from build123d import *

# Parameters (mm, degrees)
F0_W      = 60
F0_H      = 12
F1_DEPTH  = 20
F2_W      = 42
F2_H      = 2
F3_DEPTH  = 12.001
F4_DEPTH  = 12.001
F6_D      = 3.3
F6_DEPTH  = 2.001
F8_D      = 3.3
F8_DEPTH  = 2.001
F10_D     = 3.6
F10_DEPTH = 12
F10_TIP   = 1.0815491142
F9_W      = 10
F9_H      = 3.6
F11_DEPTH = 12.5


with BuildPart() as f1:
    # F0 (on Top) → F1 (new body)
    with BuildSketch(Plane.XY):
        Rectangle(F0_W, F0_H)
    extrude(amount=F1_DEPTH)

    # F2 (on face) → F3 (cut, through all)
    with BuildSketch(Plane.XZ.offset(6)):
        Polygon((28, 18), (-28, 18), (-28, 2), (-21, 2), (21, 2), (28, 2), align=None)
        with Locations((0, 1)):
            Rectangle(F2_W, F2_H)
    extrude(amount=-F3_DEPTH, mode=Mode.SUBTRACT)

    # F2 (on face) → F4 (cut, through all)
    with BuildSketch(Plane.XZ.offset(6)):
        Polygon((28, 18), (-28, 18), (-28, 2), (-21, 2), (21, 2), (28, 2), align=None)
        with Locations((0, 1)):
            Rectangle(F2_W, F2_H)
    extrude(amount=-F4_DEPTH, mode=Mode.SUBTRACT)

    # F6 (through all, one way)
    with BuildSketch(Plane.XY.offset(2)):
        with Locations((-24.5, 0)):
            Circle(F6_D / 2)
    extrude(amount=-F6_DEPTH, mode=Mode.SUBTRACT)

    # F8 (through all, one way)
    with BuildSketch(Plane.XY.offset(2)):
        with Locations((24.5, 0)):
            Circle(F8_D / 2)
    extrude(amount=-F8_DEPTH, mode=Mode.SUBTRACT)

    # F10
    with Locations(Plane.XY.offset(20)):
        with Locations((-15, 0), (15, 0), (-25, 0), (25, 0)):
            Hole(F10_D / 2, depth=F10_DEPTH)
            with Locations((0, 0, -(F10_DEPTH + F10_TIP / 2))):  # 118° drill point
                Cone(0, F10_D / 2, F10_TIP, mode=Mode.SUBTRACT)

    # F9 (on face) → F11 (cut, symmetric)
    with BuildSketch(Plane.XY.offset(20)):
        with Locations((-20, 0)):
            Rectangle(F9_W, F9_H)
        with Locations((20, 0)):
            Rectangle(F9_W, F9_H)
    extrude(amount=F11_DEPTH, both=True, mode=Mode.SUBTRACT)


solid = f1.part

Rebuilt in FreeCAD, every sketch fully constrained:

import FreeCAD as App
import Part
import Sketcher
from FreeCAD import Vector


def add_polygon(sketch, points):
    """Adds a closed chain of lines whose ends are joined by coincident constraints."""
    first, n = sketch.GeometryCount, len(points)
    for a, b in zip(points, points[1:] + points[:1]):
        sketch.addGeometry(Part.LineSegment(App.Vector(*a, 0), App.Vector(*b, 0)), False)
    for i in range(n):
        sketch.addConstraint(Sketcher.Constraint("Coincident", first + i, 2, first + (i + 1) % n, 1))

doc = App.newDocument("Part")
body = doc.addObject("PartDesign::Body", "Body")

sketch1 = body.newObject("Sketcher::SketchObject", "Sketch")
sketch1.AttachmentSupport = (doc.getObject("XY_Plane"), [""])
sketch1.MapMode = "FlatFace"
add_polygon(sketch1, [(-30, 6), (-30, -6), (30, -6), (30, 6)])
sketch1.addConstraint(Sketcher.Constraint("Vertical", 0))
sketch1.addConstraint(Sketcher.Constraint("Horizontal", 1))
sketch1.addConstraint(Sketcher.Constraint("Vertical", 2))
sketch1.addConstraint(Sketcher.Constraint("Horizontal", 3))
sketch1.addConstraint(Sketcher.Constraint("Symmetric", 0, 2, 2, 2, -1, 1))
sketch1.addConstraint(Sketcher.Constraint("DistanceX", 1, 1, 1, 2, 60.0))
sketch1.addConstraint(Sketcher.Constraint("DistanceY", 0, 2, 0, 1, 12.0))
pad1 = body.newObject("PartDesign::Pad", "Pad")
pad1.Profile = sketch1
pad1.Length = 20

sketch2 = body.newObject("Sketcher::SketchObject", "Sketch001")
sketch2.AttachmentSupport = (doc.getObject("XZ_Plane"), [""])
sketch2.MapMode = "FlatFace"
sketch2.AttachmentOffset = App.Placement(Vector(0, 0, 6), App.Rotation())
add_polygon(sketch2, [(28, 18), (-28, 18), (-28, 2), (-21, 2), (-21, 0), (21, 0), (21, 2), (28, 2)])
sketch2.addConstraint(Sketcher.Constraint("Horizontal", 0))
sketch2.addConstraint(Sketcher.Constraint("Vertical", 1))
sketch2.addConstraint(Sketcher.Constraint("Horizontal", 2))
sketch2.addConstraint(Sketcher.Constraint("Vertical", 3))
sketch2.addConstraint(Sketcher.Constraint("Horizontal", 4))
sketch2.addConstraint(Sketcher.Constraint("Vertical", 5))
sketch2.addConstraint(Sketcher.Constraint("Horizontal", 6))
sketch2.addConstraint(Sketcher.Constraint("Vertical", 7))
sketch2.addConstraint(Sketcher.Constraint("Symmetric", 3, 2, 4, 2, -1, 1))
sketch2.addConstraint(Sketcher.Constraint("Symmetric", 1, 2, 6, 2, -2))
sketch2.addConstraint(Sketcher.Constraint("DistanceX", 0, 2, 0, 1, 56.0))
sketch2.addConstraint(Sketcher.Constraint("DistanceX", 2, 1, 2, 2, 7.0))
sketch2.addConstraint(Sketcher.Constraint("DistanceY", 1, 2, 1, 1, 16.0))
sketch2.addConstraint(Sketcher.Constraint("DistanceY", 3, 2, 3, 1, 2.0))
pocket1 = body.newObject("PartDesign::Pocket", "Pocket")
pocket1.Profile = sketch2
pocket1.Type = "ThroughAll"

sketch3 = body.newObject("Sketcher::SketchObject", "Sketch002")
sketch3.AttachmentSupport = (doc.getObject("XZ_Plane"), [""])
sketch3.MapMode = "FlatFace"
sketch3.AttachmentOffset = App.Placement(Vector(0, 0, 6), App.Rotation())
add_polygon(sketch3, [(28, 18), (-28, 18), (-28, 2), (-21, 2), (-21, 0), (21, 0), (21, 2), (28, 2)])
sketch3.addConstraint(Sketcher.Constraint("Horizontal", 0))
sketch3.addConstraint(Sketcher.Constraint("Vertical", 1))
sketch3.addConstraint(Sketcher.Constraint("Horizontal", 2))
sketch3.addConstraint(Sketcher.Constraint("Vertical", 3))
sketch3.addConstraint(Sketcher.Constraint("Horizontal", 4))
sketch3.addConstraint(Sketcher.Constraint("Vertical", 5))
sketch3.addConstraint(Sketcher.Constraint("Horizontal", 6))
sketch3.addConstraint(Sketcher.Constraint("Vertical", 7))
sketch3.addConstraint(Sketcher.Constraint("Symmetric", 3, 2, 4, 2, -1, 1))
sketch3.addConstraint(Sketcher.Constraint("Symmetric", 1, 2, 6, 2, -2))
sketch3.addConstraint(Sketcher.Constraint("DistanceX", 0, 2, 0, 1, 56.0))
sketch3.addConstraint(Sketcher.Constraint("DistanceX", 2, 1, 2, 2, 7.0))
sketch3.addConstraint(Sketcher.Constraint("DistanceY", 1, 2, 1, 1, 16.0))
sketch3.addConstraint(Sketcher.Constraint("DistanceY", 3, 2, 3, 1, 2.0))
pocket2 = body.newObject("PartDesign::Pocket", "Pocket001")
pocket2.Profile = sketch3
pocket2.Type = "ThroughAll"

sketch4 = body.newObject("Sketcher::SketchObject", "Sketch003")
sketch4.AttachmentSupport = (doc.getObject("XY_Plane"), [""])
sketch4.MapMode = "FlatFace"
sketch4.AttachmentOffset = App.Placement(Vector(0, 0, 2), App.Rotation())
sketch4.addGeometry(Part.Circle(Vector(-24.5, 0, 0), Vector(0, 0, 1), 1.65), False)
sketch4.addConstraint(Sketcher.Constraint("PointOnObject", 0, 3, -1))
sketch4.addConstraint(Sketcher.Constraint("Diameter", 0, 3.3))
sketch4.addConstraint(Sketcher.Constraint("DistanceX", 0, 3, -1, 1, 24.5))
pocket3 = body.newObject("PartDesign::Pocket", "Pocket002")
pocket3.Profile = sketch4
pocket3.Type = "ThroughAll"

sketch5 = body.newObject("Sketcher::SketchObject", "Sketch004")
sketch5.AttachmentSupport = (doc.getObject("XY_Plane"), [""])
sketch5.MapMode = "FlatFace"
sketch5.AttachmentOffset = App.Placement(Vector(0, 0, 2), App.Rotation())
sketch5.addGeometry(Part.Circle(Vector(24.5, 0, 0), Vector(0, 0, 1), 1.65), False)
sketch5.addConstraint(Sketcher.Constraint("PointOnObject", 0, 3, -1))
sketch5.addConstraint(Sketcher.Constraint("Diameter", 0, 3.3))
sketch5.addConstraint(Sketcher.Constraint("DistanceX", -1, 1, 0, 3, 24.5))
pocket4 = body.newObject("PartDesign::Pocket", "Pocket003")
pocket4.Profile = sketch5
pocket4.Type = "ThroughAll"

sketch6 = body.newObject("Sketcher::SketchObject", "Sketch005")
sketch6.AttachmentSupport = (doc.getObject("XY_Plane"), [""])
sketch6.MapMode = "FlatFace"
sketch6.AttachmentOffset = App.Placement(Vector(0, 0, 20), App.Rotation())
sketch6.addGeometry(Part.Circle(Vector(-15, 0, 0), Vector(0, 0, 1), 1.8), False)
sketch6.addGeometry(Part.Circle(Vector(15, 0, 0), Vector(0, 0, 1), 1.8), False)
sketch6.addGeometry(Part.Circle(Vector(-25, 0, 0), Vector(0, 0, 1), 1.8), False)
sketch6.addGeometry(Part.Circle(Vector(25, 0, 0), Vector(0, 0, 1), 1.8), False)
sketch6.addConstraint(Sketcher.Constraint("Equal", 0, 1))
sketch6.addConstraint(Sketcher.Constraint("Equal", 1, 2))
sketch6.addConstraint(Sketcher.Constraint("Equal", 2, 3))
sketch6.addConstraint(Sketcher.Constraint("Symmetric", 0, 3, 1, 3, -1, 1))
sketch6.addConstraint(Sketcher.Constraint("Symmetric", 2, 3, 3, 3, -1, 1))
sketch6.addConstraint(Sketcher.Constraint("PointOnObject", 0, 3, -1))
sketch6.addConstraint(Sketcher.Constraint("PointOnObject", 2, 3, -1))
sketch6.addConstraint(Sketcher.Constraint("Diameter", 0, 3.6))
sketch6.addConstraint(Sketcher.Constraint("DistanceX", 0, 3, -1, 1, 15.0))
sketch6.addConstraint(Sketcher.Constraint("DistanceX", 2, 3, -1, 1, 25.0))
doc.recompute()
hole = body.newObject("PartDesign::Hole", "Hole")
hole.Profile = sketch6
hole.ThreadType = "None"
hole.Diameter = 3.6
hole.DepthType = "Dimension"
hole.Depth = 12
hole.DrillPoint = "Angled"
hole.DrillPointAngle = 118

sketch7 = body.newObject("Sketcher::SketchObject", "Sketch006")
sketch7.AttachmentSupport = (doc.getObject("XY_Plane"), [""])
sketch7.MapMode = "FlatFace"
sketch7.AttachmentOffset = App.Placement(Vector(0, 0, 20), App.Rotation())
add_polygon(sketch7, [(-25, 1.8), (-25, -1.8), (-15, -1.8), (-15, 1.8)])
add_polygon(sketch7, [(15, 1.8), (15, -1.8), (25, -1.8), (25, 1.8)])
sketch7.addConstraint(Sketcher.Constraint("Vertical", 0))
sketch7.addConstraint(Sketcher.Constraint("Horizontal", 1))
sketch7.addConstraint(Sketcher.Constraint("Vertical", 2))
sketch7.addConstraint(Sketcher.Constraint("Horizontal", 3))
sketch7.addConstraint(Sketcher.Constraint("Vertical", 4))
sketch7.addConstraint(Sketcher.Constraint("Horizontal", 5))
sketch7.addConstraint(Sketcher.Constraint("Vertical", 6))
sketch7.addConstraint(Sketcher.Constraint("Horizontal", 7))
sketch7.addConstraint(Sketcher.Constraint("Symmetric", 2, 2, 4, 2, -1, 1))
sketch7.addConstraint(Sketcher.Constraint("Symmetric", 0, 2, 6, 2, -1, 1))
sketch7.addConstraint(Sketcher.Constraint("Horizontal", 1, 2, 4, 2))
sketch7.addConstraint(Sketcher.Constraint("DistanceX", 1, 1, 1, 2, 10.0))
sketch7.addConstraint(Sketcher.Constraint("DistanceY", 0, 2, 0, 1, 3.6))
sketch7.addConstraint(Sketcher.Constraint("DistanceX", 0, 2, -1, 1, 25.0))
pocket5 = body.newObject("PartDesign::Pocket", "Pocket004")
pocket5.Profile = sketch7
pocket5.Length = 25
pocket5.Midplane = True

doc.recompute()
